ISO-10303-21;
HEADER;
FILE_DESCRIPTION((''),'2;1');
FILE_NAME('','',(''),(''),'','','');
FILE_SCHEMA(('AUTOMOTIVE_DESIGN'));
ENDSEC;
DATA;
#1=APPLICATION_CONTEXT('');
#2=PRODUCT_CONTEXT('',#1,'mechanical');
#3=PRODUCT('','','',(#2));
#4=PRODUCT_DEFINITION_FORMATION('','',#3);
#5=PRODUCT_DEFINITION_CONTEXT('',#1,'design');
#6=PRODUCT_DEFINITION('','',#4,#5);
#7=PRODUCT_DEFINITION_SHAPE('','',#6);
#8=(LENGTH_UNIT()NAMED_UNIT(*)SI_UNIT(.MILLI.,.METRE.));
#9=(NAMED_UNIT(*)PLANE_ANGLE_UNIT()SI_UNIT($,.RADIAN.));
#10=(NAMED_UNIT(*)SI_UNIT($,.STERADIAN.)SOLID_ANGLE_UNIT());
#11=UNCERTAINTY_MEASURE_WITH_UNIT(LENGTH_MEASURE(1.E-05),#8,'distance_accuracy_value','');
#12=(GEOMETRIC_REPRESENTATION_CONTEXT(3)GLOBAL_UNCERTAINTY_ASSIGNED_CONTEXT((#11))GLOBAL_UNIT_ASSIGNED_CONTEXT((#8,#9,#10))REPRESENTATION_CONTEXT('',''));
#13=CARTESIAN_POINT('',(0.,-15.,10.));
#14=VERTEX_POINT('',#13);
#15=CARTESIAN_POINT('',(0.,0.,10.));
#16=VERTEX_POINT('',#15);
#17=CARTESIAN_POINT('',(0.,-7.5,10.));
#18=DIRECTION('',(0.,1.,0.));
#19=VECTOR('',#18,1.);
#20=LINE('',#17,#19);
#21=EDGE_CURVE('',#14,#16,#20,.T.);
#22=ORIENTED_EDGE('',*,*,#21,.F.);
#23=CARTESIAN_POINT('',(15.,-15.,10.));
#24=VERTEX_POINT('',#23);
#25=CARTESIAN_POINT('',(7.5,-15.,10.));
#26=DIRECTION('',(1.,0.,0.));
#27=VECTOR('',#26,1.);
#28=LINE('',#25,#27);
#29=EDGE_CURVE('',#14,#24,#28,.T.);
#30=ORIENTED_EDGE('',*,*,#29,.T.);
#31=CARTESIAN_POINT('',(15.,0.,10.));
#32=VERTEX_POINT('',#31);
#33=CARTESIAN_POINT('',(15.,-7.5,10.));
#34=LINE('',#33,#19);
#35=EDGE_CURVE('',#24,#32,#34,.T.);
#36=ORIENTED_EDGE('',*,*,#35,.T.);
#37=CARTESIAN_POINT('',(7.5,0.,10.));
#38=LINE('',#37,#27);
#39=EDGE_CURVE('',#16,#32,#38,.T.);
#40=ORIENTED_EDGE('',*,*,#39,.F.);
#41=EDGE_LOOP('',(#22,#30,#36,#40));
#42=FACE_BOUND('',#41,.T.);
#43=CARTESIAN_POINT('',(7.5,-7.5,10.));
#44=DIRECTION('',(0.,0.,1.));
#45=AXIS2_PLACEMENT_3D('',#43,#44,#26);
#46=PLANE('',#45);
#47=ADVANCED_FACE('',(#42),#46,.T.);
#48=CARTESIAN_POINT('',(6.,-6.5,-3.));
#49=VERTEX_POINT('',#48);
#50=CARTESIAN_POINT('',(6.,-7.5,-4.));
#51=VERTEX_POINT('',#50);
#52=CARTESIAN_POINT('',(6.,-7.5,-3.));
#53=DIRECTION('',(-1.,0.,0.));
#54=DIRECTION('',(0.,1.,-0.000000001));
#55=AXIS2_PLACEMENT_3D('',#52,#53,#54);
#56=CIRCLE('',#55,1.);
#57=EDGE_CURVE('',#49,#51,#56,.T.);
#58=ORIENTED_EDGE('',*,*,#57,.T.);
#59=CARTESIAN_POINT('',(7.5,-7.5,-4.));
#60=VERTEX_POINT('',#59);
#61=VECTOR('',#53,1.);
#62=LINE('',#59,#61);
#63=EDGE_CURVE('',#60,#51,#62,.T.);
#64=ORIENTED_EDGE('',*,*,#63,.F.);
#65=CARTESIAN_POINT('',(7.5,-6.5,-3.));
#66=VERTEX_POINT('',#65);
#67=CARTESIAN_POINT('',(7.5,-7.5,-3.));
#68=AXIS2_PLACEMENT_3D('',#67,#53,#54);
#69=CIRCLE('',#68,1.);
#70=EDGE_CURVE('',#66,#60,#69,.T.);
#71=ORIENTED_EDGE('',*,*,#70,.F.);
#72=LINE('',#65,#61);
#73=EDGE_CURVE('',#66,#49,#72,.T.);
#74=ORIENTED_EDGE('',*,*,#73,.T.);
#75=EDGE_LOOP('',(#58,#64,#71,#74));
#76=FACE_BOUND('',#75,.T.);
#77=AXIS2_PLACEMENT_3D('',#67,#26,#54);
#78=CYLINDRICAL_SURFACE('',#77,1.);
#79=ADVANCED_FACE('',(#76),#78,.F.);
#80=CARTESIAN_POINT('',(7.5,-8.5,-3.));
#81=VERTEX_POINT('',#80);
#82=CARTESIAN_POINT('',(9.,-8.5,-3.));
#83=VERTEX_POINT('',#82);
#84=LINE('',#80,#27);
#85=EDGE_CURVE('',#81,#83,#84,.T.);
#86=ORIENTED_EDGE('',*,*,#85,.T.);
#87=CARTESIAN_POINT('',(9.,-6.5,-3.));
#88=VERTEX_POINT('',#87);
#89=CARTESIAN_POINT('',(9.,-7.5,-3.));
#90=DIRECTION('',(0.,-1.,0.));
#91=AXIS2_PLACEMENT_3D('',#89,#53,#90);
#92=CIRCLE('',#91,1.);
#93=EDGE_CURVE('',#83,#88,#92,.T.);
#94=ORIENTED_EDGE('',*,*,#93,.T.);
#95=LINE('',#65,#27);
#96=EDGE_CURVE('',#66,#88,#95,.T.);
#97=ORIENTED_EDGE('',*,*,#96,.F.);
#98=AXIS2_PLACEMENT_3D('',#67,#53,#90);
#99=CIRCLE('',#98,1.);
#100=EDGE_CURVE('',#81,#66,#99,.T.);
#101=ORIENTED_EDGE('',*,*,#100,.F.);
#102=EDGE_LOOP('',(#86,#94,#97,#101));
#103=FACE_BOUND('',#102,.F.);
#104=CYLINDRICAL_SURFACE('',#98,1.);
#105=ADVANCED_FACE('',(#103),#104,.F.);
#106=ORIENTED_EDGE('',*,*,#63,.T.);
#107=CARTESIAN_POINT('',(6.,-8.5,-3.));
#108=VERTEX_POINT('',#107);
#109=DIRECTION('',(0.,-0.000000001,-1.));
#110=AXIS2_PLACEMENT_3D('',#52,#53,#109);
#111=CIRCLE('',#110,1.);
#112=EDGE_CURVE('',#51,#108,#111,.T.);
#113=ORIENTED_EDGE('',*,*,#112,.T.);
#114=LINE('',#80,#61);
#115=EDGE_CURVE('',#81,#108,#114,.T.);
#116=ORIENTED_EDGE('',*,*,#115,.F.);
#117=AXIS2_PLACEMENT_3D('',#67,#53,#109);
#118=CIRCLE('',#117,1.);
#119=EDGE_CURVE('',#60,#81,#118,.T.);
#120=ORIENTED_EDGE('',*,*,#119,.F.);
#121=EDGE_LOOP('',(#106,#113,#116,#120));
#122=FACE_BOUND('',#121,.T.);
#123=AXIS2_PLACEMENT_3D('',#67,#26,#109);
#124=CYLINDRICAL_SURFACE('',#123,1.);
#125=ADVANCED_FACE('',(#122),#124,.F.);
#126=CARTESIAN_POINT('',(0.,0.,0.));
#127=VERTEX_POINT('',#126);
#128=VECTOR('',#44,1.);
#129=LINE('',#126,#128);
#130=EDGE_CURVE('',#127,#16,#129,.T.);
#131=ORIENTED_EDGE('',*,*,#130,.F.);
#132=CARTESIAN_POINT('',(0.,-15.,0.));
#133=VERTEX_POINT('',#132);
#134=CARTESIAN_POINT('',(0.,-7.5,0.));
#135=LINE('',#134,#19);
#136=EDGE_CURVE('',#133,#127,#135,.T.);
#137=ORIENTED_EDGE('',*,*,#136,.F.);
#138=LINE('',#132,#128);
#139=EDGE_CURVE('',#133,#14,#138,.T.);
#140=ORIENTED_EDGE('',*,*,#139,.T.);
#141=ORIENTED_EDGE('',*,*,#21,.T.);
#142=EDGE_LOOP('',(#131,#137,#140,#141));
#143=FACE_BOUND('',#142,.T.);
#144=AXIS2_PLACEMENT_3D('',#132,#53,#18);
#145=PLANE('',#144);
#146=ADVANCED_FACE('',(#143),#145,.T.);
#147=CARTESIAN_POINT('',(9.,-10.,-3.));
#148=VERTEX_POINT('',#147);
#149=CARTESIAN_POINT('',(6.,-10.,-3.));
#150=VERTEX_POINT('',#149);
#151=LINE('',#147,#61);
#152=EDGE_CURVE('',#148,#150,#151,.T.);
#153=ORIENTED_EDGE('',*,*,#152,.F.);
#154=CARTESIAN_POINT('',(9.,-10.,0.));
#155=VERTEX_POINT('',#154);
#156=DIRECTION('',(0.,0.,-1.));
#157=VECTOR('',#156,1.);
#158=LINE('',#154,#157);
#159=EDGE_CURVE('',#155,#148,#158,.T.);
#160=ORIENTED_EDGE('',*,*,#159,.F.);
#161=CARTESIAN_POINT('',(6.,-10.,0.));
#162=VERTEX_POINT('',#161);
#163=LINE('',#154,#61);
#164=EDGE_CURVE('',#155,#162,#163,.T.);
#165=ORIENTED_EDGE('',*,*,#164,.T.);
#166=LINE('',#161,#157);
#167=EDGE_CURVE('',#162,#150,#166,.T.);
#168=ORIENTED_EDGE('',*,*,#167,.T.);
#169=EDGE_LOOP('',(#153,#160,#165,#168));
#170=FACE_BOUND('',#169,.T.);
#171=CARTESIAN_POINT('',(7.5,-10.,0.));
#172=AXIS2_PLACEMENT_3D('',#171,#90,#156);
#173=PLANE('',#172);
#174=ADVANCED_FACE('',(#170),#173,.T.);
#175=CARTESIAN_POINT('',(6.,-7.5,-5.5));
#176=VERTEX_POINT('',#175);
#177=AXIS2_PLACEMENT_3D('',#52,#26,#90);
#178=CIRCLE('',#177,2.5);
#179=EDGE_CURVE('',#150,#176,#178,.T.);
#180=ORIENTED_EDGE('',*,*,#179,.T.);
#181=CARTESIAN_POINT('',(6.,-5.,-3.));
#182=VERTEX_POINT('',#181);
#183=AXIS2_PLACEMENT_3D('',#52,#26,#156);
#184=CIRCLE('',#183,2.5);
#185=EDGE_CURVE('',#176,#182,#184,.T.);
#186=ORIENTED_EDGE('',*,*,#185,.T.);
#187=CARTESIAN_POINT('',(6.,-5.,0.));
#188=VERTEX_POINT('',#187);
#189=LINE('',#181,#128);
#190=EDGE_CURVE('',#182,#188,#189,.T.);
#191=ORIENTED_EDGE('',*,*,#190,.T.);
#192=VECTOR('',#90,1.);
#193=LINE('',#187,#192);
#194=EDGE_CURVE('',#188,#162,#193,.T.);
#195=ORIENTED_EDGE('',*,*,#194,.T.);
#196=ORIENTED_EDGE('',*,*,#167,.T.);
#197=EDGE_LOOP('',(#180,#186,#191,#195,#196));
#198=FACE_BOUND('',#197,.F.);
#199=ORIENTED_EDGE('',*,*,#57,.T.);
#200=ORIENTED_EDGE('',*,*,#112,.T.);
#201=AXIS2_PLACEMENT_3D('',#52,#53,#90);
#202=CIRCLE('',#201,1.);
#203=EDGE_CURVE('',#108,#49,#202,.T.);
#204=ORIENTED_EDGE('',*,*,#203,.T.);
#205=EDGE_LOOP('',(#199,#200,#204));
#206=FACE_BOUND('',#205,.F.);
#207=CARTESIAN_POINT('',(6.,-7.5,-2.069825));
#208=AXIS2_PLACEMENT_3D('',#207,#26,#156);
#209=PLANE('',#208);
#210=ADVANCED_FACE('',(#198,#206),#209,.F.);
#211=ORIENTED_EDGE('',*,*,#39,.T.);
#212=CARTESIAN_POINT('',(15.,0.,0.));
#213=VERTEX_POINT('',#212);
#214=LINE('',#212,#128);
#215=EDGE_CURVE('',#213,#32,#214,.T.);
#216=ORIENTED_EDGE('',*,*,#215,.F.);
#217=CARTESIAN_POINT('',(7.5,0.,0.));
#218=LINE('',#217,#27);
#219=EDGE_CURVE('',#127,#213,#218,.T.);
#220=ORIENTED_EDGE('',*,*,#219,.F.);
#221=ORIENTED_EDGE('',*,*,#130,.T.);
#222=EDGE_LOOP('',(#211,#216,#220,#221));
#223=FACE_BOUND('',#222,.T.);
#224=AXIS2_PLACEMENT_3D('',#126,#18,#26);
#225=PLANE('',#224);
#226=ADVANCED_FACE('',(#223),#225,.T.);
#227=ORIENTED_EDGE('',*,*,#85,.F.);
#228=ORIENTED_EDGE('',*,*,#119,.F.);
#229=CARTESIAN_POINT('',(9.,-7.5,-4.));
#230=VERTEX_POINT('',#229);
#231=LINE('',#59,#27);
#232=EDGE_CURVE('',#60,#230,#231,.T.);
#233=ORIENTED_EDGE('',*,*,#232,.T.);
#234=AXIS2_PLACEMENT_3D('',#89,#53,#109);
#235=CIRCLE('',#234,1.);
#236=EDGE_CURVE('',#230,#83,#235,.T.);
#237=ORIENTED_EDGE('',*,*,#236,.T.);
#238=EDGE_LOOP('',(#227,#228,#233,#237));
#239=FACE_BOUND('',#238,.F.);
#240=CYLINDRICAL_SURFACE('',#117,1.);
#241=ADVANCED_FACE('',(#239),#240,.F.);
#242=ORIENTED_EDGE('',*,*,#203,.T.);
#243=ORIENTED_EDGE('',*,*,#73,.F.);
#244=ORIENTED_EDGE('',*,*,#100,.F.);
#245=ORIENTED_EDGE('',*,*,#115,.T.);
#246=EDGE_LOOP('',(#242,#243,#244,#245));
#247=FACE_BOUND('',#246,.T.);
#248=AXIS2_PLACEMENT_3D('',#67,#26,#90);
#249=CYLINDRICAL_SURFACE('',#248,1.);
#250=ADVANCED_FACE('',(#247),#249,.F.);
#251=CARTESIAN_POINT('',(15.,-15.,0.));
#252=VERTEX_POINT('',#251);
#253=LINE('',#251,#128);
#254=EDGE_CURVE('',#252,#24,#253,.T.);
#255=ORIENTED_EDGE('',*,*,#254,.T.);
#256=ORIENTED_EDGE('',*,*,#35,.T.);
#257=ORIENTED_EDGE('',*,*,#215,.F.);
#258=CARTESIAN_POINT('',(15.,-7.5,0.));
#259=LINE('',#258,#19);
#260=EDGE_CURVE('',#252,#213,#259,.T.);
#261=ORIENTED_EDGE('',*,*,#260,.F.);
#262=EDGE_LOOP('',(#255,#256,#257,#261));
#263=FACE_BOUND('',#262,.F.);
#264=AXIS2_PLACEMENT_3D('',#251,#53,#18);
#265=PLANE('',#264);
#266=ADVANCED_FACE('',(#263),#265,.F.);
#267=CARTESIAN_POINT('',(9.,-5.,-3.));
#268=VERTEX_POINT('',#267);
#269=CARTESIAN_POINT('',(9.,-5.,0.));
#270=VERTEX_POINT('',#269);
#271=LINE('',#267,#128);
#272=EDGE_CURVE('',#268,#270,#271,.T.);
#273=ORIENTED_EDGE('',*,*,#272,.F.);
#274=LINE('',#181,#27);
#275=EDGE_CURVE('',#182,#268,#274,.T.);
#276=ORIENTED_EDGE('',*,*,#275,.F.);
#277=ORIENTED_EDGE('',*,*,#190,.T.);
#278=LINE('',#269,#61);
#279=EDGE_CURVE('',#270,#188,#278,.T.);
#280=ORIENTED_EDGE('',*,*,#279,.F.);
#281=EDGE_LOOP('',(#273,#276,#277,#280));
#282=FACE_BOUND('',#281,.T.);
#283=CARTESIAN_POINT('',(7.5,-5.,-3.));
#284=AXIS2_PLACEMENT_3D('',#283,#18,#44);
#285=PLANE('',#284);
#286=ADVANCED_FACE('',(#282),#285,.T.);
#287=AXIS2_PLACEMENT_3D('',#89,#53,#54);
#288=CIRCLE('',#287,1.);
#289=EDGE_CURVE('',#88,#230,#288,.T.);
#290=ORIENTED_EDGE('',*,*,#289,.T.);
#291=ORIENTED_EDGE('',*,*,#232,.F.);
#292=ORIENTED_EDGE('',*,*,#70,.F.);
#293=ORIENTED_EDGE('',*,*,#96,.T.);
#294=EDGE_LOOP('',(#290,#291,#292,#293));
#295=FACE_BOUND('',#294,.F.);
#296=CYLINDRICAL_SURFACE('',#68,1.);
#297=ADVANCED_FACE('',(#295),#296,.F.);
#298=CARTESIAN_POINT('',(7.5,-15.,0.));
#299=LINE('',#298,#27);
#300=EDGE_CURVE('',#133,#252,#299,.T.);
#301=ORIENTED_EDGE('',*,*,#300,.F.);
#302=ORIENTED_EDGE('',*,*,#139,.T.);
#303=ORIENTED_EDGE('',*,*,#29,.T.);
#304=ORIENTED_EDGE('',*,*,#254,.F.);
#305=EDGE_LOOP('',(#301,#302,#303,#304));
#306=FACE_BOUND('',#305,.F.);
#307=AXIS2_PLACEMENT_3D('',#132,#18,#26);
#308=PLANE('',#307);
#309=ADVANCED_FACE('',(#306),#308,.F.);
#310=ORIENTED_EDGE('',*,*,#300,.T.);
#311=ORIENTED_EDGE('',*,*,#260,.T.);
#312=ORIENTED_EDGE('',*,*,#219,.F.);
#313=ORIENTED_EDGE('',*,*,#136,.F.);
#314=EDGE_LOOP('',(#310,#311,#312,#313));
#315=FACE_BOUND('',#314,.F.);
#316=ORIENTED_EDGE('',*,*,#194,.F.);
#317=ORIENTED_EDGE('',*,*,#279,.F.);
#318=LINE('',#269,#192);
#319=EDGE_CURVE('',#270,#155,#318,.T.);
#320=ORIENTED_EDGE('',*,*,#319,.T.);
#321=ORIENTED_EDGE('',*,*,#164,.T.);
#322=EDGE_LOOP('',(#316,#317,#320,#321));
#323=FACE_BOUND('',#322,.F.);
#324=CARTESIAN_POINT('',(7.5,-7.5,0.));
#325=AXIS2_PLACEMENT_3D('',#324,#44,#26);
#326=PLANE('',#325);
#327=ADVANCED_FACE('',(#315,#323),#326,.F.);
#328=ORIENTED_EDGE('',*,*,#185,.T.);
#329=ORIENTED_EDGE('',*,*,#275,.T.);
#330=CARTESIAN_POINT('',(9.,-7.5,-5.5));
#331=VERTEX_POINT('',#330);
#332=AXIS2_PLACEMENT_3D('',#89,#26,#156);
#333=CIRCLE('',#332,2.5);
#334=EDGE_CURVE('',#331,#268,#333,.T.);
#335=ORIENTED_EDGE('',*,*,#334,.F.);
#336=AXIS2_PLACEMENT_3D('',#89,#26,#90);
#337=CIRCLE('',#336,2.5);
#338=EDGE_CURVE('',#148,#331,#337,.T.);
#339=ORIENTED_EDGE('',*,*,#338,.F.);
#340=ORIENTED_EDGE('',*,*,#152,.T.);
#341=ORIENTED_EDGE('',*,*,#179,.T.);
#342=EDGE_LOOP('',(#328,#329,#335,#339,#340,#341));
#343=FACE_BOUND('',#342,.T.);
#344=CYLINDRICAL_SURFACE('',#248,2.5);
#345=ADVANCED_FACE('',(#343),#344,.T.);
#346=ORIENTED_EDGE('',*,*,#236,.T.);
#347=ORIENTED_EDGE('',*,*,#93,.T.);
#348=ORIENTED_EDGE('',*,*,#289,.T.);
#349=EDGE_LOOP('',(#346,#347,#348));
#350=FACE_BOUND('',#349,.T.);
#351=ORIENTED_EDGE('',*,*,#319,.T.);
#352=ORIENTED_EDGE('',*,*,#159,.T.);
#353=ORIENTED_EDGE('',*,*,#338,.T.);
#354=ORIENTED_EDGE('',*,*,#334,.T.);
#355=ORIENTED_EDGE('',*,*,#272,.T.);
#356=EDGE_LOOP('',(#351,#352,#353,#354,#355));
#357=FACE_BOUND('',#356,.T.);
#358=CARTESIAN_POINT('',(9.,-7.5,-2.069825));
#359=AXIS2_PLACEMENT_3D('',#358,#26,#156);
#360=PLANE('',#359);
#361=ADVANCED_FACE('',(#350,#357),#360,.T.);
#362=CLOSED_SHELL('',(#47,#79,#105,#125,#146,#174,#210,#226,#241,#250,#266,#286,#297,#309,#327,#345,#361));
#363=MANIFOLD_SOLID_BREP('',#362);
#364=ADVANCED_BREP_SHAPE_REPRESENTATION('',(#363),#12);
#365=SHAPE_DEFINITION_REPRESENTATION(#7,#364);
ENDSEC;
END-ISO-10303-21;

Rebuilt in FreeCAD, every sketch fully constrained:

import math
import FreeCAD as App
import Part
import Sketcher
from FreeCAD import Vector
Q = App.Units.Quantity

doc = App.newDocument("Part")
params = doc.addObject("Spreadsheet::Sheet", "Params")
for row, (alias, value) in enumerate([
    ("sketch1_width", "15 mm"),
    ("pad1_length", "10 mm"),
    ("sketch2_radius", "1 mm"),
    ("sketch2_radius2", "2.5 mm"),
    ("sketch2_height", "3 mm"),
    ("pad2_length", "3 mm"),
], start=1):
    params.set(f"A{row}", alias)
    params.set(f"B{row}", "=" + value)
    params.setAlias(f"B{row}", alias)

body = doc.addObject("PartDesign::Body", "Body")

sketch1 = doc.addObject("Sketcher::SketchObject", "Sketch")
body.addObject(sketch1)
sketch1.AttachmentSupport = (doc.XY_Plane, [""])
sketch1.MapMode = "FlatFace"
sketch1.addGeometry([
    Part.LineSegment(Vector(0, 0, 0), Vector(0, -15, 0)),
    Part.LineSegment(Vector(0, -15, 0), Vector(15, -15, 0)),
    Part.LineSegment(Vector(15, -15, 0), Vector(15, 0, 0)),
    Part.LineSegment(Vector(15, 0, 0), Vector(0, 0, 0)),
], False)
sketch1.addConstraint([
    Sketcher.Constraint("Coincident", 0, 2, 1, 1),
    Sketcher.Constraint("Coincident", 1, 2, 2, 1),
    Sketcher.Constraint("Coincident", 2, 2, 3, 1),
    Sketcher.Constraint("Coincident", 3, 2, 0, 1),
    Sketcher.Constraint("Vertical", 0),
    Sketcher.Constraint("Horizontal", 1),
    Sketcher.Constraint("Vertical", 2),
    Sketcher.Constraint("Horizontal", 3),
    Sketcher.Constraint("Coincident", 3, 2, -1, 1),
    Sketcher.Constraint("Equal", 3, 0),
    Sketcher.Constraint("DistanceX", 1, 1, 1, 2, Q("15 mm")),
])
sketch1.setExpression("Constraints[10]", "Params.sketch1_width")
pad1 = doc.addObject("PartDesign::Pad", "Pad")
body.addObject(pad1)
pad1.Profile = sketch1
pad1.setExpression("Length", "Params.pad1_length")

sketch2 = doc.addObject("Sketcher::SketchObject", "Sketch001")
body.addObject(sketch2)
sketch2.AttachmentSupport = (doc.YZ_Plane, [""])
sketch2.MapMode = "FlatFace"
sketch2.AttachmentOffset = App.Placement(Vector(0, 0, 7.5), App.Rotation())
sketch2.addGeometry([
    Part.ArcOfCircle(Part.Circle(Vector(-7.5, -3, 0), Vector(0, 0, 1), 2.5), math.radians(180), math.radians(270)),
    Part.ArcOfCircle(Part.Circle(Vector(-7.5, -3, 0), Vector(0, 0, 1), 2.5), math.radians(-90), math.radians(0)),
    Part.LineSegment(Vector(-5, -3, 0), Vector(-5, 0, 0)),
    Part.LineSegment(Vector(-5, 0, 0), Vector(-10, 0, 0)),
    Part.LineSegment(Vector(-10, 0, 0), Vector(-10, -3, 0)),
    Part.ArcOfCircle(Part.Circle(Vector(-7.5, -3, 0), Vector(0, 0, 1), 1), math.radians(0), math.radians(180)),
    Part.ArcOfCircle(Part.Circle(Vector(-7.5, -3, 0), Vector(0, 0, 1), 1), math.radians(-90), math.radians(0)),
    Part.ArcOfCircle(Part.Circle(Vector(-7.5, -3, 0), Vector(0, 0, 1), 1), math.radians(-180), math.radians(-90)),
], False)
sketch2.addConstraint([
    Sketcher.Constraint("Tangent", 0, 2, 1, 1),
    Sketcher.Constraint("Tangent", 1, 2, 2, 1),
    Sketcher.Constraint("Coincident", 2, 2, 3, 1),
    Sketcher.Constraint("Coincident", 3, 2, 4, 1),
    Sketcher.Constraint("Tangent", 4, 2, 0, 1),
    Sketcher.Constraint("Tangent", 5, 1, 6, 2),
    Sketcher.Constraint("Tangent", 6, 1, 7, 2),
    Sketcher.Constraint("Tangent", 7, 1, 5, 2),
    Sketcher.Constraint("Vertical", 2),
    Sketcher.Constraint("Horizontal", 3),
    Sketcher.Constraint("Vertical", 4),
    Sketcher.Constraint("Coincident", 5, 3, 0, 3),
    Sketcher.Constraint("Equal", 0, 1),
    Sketcher.Constraint("PointOnObject", 2, 2, -1),
    Sketcher.Constraint("Horizontal", 4, 2, 5, 1),
    Sketcher.Constraint("Horizontal", 5, 1, 7, 1),
    Sketcher.Constraint("Vertical", 7, 3, 0, 2),
    Sketcher.Constraint("Vertical", 0, 2, 6, 1),
    Sketcher.Constraint("Radius", 5, Q("1 mm")),
    Sketcher.Constraint("Radius", 0, Q("2.5 mm")),
    Sketcher.Constraint("DistanceY", 2, 1, 2, 2, Q("3 mm")),
    Sketcher.Constraint("DistanceX", 1, 2, -1, 1, Q("5 mm")),
])
sketch2.setExpression("Constraints[18]", "Params.sketch2_radius")
sketch2.setExpression("Constraints[19]", "Params.sketch2_radius2")
sketch2.setExpression("Constraints[20]", "Params.sketch2_height")
pad2 = doc.addObject("PartDesign::Pad", "Pad001")
body.addObject(pad2)
pad2.Profile = sketch2
pad2.setExpression("Length", "Params.pad2_length")
pad2.Midplane = True

doc.recompute()
